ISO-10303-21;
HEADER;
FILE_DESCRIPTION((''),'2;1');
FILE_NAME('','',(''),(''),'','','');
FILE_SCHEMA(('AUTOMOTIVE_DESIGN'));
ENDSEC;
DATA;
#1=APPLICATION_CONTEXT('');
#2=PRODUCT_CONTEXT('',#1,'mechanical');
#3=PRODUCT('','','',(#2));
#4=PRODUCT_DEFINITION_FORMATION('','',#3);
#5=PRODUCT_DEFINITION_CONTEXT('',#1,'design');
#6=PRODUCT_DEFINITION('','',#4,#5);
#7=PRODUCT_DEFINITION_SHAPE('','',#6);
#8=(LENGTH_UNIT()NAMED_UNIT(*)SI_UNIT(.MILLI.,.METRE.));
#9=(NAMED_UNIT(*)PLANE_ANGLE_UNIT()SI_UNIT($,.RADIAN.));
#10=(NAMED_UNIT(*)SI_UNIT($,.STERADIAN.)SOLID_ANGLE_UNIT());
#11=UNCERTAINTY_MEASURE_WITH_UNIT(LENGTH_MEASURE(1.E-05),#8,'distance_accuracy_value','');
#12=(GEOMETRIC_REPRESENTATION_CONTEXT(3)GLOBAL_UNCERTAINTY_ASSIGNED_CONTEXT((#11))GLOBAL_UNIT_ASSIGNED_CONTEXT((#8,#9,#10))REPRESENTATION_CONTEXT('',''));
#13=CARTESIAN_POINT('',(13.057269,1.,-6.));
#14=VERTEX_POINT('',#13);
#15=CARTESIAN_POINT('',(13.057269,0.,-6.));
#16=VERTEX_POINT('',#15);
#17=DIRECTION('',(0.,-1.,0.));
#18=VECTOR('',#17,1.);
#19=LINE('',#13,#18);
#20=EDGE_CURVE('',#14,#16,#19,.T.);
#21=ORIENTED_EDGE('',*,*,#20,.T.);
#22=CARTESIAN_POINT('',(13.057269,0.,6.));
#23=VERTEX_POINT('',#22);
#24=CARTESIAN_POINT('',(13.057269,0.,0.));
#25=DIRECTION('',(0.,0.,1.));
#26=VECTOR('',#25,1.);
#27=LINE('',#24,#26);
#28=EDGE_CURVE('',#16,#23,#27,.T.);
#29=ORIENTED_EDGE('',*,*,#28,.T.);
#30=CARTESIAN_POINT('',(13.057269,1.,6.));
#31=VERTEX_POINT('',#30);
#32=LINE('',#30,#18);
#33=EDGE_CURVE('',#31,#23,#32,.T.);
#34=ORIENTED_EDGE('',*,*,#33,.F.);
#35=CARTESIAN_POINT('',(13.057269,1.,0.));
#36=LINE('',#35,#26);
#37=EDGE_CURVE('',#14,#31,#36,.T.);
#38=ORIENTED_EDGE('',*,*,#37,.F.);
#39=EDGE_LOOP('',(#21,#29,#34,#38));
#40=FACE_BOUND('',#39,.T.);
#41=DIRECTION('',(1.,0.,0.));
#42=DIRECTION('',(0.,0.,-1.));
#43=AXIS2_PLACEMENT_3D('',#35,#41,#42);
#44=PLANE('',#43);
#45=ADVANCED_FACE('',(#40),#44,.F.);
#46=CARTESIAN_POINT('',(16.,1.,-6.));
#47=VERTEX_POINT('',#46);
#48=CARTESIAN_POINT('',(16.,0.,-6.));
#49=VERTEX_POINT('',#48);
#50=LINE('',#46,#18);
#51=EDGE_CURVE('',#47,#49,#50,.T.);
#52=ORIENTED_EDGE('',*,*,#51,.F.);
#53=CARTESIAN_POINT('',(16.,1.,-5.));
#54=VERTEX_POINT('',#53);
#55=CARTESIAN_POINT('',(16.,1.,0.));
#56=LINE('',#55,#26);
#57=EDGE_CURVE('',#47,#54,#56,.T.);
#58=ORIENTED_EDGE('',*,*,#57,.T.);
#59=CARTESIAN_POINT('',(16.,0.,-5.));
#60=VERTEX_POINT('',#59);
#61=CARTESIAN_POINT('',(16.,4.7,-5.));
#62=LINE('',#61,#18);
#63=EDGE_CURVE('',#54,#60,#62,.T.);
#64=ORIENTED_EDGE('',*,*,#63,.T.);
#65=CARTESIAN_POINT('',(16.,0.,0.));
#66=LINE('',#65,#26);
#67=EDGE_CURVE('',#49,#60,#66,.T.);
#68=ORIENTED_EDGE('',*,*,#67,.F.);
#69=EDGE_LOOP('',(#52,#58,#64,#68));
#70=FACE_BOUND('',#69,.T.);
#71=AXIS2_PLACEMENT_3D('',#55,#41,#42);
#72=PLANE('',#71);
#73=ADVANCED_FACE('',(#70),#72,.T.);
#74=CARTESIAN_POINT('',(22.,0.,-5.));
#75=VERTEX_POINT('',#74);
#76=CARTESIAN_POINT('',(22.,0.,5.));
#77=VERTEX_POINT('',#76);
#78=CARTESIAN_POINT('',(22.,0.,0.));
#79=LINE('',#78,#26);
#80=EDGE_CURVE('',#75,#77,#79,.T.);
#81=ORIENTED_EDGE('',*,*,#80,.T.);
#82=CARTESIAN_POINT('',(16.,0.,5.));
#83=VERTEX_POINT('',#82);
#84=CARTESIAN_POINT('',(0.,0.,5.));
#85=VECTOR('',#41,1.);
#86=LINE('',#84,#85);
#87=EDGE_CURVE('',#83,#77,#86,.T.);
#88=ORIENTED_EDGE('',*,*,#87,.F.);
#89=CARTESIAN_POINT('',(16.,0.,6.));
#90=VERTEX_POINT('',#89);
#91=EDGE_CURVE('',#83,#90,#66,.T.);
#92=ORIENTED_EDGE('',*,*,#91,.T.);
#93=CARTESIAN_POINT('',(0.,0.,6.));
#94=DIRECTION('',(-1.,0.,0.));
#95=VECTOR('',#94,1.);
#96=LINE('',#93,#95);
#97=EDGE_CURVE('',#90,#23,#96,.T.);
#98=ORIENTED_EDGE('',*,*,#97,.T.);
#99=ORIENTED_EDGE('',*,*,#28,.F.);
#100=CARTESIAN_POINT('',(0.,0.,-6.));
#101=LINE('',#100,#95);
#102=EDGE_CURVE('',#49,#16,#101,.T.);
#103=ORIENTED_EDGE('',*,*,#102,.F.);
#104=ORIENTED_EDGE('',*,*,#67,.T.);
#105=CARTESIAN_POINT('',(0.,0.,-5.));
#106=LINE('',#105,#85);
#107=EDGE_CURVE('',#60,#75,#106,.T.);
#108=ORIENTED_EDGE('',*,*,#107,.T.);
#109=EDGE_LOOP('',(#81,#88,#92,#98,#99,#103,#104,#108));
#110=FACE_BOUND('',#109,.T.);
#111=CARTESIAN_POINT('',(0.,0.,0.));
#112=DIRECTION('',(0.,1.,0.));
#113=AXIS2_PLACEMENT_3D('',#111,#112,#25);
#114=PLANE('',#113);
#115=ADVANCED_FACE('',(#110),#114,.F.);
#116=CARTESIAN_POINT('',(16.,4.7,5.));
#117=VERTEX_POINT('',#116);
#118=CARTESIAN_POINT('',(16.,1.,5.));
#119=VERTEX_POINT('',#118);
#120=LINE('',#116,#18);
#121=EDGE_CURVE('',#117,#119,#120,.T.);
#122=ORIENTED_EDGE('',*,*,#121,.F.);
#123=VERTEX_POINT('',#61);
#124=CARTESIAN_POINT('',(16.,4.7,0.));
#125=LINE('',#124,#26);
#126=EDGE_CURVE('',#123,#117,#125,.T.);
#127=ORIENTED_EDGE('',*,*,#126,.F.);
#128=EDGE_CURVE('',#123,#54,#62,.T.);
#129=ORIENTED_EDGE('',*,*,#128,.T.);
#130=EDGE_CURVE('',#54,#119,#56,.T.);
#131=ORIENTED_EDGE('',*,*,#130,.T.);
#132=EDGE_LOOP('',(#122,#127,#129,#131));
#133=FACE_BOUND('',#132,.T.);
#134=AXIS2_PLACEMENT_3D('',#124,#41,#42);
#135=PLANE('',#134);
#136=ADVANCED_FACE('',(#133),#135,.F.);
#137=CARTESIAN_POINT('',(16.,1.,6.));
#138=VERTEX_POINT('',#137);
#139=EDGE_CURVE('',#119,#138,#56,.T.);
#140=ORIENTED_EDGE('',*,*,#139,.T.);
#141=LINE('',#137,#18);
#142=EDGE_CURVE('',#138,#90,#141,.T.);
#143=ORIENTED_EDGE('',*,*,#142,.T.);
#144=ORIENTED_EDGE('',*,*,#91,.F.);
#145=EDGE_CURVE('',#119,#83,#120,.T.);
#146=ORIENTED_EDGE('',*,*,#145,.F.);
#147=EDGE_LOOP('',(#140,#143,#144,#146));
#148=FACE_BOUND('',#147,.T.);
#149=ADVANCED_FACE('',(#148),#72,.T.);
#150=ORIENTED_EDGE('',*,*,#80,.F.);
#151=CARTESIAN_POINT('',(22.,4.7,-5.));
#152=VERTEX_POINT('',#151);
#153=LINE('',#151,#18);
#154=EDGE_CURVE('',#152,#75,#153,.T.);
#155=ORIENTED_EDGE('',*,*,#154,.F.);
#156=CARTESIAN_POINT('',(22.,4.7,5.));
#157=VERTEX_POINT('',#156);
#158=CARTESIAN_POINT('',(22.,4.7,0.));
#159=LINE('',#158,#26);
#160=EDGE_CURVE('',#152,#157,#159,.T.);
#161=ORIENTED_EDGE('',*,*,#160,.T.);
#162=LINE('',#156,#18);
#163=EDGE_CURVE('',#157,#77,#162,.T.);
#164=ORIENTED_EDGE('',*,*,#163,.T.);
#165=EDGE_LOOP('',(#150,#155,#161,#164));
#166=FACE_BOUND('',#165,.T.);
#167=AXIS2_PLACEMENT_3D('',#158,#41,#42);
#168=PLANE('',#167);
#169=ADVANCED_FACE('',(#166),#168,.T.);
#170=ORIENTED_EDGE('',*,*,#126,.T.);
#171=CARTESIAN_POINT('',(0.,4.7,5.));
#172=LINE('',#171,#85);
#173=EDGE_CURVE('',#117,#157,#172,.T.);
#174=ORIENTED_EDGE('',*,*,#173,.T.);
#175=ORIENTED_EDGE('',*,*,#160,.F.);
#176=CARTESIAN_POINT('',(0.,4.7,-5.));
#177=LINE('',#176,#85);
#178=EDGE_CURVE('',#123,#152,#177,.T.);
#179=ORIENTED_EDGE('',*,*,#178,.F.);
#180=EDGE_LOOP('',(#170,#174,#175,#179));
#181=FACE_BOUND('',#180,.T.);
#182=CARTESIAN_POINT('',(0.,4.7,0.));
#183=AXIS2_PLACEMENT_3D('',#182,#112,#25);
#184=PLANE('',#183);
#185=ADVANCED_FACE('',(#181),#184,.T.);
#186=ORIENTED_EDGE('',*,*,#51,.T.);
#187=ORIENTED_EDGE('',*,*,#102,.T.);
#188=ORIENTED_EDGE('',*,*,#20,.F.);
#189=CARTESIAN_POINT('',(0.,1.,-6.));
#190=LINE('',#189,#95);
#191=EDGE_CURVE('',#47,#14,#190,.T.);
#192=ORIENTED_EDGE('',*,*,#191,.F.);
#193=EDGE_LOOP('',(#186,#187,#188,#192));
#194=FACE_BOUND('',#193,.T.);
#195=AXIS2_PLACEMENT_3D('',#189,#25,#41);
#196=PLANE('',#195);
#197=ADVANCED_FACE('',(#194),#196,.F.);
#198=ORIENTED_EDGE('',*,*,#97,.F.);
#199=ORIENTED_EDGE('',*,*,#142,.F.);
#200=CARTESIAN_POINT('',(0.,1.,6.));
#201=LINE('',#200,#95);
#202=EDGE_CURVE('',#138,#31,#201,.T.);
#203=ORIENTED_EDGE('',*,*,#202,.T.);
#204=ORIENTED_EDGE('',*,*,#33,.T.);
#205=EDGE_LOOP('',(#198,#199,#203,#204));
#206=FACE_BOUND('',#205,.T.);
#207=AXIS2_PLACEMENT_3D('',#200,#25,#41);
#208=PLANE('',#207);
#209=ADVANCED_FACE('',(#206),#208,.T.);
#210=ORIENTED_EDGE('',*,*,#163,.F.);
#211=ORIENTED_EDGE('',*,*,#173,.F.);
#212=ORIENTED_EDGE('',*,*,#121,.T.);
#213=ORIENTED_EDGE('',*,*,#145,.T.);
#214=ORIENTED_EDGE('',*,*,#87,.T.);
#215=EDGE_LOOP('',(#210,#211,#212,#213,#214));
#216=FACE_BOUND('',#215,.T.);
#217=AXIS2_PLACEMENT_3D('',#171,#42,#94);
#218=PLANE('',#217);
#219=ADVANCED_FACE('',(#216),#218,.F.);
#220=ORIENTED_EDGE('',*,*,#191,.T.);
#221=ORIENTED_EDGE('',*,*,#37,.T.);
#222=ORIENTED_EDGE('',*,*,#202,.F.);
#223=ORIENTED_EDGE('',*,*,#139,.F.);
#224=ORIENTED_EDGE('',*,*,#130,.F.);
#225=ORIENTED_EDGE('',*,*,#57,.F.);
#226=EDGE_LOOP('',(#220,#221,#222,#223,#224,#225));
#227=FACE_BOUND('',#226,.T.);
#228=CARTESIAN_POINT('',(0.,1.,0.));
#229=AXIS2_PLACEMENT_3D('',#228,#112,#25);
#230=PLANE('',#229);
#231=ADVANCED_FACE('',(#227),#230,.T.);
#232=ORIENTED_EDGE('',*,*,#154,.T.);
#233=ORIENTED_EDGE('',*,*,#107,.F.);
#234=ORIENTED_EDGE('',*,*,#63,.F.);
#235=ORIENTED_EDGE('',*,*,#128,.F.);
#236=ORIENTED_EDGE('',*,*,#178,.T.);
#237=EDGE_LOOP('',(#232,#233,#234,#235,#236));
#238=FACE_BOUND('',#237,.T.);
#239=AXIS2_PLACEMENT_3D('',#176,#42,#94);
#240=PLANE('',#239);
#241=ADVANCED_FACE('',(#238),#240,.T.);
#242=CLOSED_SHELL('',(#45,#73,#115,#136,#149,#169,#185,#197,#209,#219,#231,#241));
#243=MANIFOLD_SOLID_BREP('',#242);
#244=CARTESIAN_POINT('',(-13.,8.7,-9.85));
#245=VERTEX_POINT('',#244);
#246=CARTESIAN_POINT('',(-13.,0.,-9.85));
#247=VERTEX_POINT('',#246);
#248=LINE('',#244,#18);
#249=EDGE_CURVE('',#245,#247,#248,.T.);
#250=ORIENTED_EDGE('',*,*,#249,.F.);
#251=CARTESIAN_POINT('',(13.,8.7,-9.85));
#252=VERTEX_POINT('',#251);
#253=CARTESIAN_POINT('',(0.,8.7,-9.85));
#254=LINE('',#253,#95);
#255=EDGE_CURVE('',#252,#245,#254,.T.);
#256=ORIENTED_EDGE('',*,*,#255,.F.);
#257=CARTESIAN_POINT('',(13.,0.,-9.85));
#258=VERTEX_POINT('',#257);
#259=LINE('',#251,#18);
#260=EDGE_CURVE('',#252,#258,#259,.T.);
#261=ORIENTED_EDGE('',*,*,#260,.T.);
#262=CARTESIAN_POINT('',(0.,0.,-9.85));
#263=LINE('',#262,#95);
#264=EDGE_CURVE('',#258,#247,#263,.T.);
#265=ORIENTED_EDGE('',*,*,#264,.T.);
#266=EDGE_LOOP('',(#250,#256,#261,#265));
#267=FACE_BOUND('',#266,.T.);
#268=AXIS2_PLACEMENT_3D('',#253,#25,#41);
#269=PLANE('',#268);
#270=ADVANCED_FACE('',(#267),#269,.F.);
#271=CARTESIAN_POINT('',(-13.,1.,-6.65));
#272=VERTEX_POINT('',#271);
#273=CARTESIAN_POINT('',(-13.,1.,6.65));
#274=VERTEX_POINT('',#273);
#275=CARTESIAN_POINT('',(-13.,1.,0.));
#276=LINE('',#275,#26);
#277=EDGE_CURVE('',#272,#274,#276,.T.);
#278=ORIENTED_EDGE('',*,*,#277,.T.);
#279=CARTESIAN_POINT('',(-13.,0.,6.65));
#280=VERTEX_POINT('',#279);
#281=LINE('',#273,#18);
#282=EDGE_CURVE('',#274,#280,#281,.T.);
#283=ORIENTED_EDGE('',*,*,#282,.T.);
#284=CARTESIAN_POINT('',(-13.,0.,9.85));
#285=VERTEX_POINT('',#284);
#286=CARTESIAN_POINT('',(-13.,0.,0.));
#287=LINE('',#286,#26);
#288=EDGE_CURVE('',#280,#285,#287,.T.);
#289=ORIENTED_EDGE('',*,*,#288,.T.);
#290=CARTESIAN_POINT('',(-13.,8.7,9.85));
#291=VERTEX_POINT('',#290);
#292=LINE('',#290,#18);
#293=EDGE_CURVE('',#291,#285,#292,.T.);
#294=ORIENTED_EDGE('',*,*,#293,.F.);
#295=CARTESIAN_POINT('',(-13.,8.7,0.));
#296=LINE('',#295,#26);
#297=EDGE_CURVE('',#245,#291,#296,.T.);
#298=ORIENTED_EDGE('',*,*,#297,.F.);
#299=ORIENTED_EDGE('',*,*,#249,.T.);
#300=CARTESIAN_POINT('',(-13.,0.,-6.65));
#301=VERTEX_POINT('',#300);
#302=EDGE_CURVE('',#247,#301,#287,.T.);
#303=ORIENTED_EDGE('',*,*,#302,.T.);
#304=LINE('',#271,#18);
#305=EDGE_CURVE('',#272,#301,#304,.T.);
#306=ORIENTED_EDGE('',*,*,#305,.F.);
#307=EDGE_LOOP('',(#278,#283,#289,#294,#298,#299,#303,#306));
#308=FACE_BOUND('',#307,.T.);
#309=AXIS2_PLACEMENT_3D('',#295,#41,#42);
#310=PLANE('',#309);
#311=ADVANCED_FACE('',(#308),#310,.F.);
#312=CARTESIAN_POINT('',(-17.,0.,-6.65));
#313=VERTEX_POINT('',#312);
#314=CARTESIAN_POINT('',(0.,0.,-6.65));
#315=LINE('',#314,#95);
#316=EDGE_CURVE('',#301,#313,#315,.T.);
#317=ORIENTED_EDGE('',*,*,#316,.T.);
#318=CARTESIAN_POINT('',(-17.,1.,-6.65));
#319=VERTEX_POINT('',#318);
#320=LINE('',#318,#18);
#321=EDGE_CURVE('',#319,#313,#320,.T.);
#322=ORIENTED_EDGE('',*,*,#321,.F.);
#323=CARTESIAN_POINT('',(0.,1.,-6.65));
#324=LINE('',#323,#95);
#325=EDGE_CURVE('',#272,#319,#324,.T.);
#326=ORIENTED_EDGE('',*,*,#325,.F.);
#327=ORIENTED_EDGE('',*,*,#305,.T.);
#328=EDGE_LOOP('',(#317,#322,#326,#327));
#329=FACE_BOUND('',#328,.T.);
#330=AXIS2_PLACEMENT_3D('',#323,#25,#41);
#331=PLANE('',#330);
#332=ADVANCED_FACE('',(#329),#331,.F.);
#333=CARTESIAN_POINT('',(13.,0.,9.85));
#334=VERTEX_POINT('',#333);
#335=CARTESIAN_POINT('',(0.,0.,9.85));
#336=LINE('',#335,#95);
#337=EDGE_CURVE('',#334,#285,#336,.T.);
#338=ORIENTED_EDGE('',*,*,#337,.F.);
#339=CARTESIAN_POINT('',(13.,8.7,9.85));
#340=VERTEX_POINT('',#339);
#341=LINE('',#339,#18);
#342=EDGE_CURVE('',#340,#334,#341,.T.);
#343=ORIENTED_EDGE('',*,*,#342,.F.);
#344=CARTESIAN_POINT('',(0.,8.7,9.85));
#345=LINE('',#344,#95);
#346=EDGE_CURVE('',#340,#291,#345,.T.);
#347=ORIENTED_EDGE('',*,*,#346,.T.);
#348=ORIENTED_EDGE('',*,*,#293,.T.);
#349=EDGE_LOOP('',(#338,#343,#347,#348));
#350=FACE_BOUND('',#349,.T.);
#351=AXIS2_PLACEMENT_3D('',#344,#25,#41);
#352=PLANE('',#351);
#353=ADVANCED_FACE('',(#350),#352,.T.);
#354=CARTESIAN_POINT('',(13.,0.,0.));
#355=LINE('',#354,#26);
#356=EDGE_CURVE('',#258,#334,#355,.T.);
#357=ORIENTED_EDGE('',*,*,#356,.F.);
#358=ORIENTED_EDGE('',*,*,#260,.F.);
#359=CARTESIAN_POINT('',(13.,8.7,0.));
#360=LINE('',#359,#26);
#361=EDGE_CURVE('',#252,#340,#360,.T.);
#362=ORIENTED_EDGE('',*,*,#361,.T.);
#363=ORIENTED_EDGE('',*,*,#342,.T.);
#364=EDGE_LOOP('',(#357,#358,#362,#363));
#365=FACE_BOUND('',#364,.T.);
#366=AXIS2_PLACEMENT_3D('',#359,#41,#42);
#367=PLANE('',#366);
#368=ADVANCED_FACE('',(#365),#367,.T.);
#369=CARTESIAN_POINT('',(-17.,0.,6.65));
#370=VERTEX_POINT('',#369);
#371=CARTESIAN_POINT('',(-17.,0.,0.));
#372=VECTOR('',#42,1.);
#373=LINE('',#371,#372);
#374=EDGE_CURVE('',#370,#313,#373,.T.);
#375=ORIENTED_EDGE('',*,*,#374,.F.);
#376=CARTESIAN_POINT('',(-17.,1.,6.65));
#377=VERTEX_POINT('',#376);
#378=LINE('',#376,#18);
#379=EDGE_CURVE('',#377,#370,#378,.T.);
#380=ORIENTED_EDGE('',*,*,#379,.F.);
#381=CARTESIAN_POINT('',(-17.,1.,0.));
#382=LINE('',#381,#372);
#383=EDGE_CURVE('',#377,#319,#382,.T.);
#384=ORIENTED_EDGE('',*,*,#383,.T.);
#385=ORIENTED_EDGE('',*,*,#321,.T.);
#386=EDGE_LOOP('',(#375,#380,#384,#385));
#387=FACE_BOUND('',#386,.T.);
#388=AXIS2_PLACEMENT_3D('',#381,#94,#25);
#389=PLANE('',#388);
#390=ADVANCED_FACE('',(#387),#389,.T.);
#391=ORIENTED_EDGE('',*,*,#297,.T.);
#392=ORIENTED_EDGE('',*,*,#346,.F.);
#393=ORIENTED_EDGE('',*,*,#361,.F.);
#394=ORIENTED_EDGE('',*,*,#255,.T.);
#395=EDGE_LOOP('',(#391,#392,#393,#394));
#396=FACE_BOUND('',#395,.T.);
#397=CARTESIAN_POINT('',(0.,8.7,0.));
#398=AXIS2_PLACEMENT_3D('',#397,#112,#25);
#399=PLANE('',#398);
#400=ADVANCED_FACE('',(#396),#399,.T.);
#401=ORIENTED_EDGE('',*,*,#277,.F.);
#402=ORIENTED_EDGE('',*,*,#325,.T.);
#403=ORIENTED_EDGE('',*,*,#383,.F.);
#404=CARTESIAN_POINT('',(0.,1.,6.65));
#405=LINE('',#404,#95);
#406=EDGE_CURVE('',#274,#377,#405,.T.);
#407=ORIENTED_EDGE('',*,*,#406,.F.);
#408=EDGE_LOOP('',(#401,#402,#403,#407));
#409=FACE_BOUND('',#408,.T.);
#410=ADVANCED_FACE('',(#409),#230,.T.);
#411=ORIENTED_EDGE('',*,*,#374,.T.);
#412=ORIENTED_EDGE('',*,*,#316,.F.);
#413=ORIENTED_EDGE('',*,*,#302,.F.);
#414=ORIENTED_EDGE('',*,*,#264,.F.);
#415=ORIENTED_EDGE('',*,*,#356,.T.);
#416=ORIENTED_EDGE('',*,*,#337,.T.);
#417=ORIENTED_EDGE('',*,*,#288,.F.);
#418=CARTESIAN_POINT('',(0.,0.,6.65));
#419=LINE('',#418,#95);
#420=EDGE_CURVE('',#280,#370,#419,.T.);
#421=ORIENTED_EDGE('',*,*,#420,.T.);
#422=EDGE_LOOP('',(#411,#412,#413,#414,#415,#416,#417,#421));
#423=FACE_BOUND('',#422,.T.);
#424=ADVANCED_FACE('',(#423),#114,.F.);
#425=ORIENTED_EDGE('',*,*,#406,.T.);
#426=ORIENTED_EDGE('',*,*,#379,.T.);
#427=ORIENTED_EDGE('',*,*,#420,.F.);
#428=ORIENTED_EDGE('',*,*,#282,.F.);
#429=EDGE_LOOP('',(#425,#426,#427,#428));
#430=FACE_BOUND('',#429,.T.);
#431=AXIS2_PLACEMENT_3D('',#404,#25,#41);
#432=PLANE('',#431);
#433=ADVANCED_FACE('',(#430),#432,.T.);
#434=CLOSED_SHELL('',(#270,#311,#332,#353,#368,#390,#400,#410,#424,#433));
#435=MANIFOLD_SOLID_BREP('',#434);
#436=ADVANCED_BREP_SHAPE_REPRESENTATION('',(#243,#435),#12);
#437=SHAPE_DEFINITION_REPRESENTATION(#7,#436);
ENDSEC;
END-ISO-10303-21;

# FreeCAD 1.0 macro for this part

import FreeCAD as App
import Part
import Sketcher
Q = App.Units.Quantity


def add_polygon(sketch, points):
    """Adds a closed chain of lines whose ends are joined by coincident constraints."""
    first, n = sketch.GeometryCount, len(points)
    for a, b in zip(points, points[1:] + points[:1]):
        sketch.addGeometry(Part.LineSegment(App.Vector(*a, 0), App.Vector(*b, 0)), False)
    for i in range(n):
        sketch.addConstraint(Sketcher.Constraint("Coincident", first + i, 2, first + (i + 1) % n, 1))

doc = App.newDocument("Part")
body = doc.addObject("PartDesign::Body", "Body")
body.AllowCompound = True

# Sketch on XZ plane
sketch1 = body.newObject("Sketcher::SketchObject", "Sketch")
sketch1.AttachmentSupport = (doc.getObject("XZ_Plane"), [""])
sketch1.MapMode = "FlatFace"
add_polygon(sketch1, [(-17, -6.65), (-17, 6.65), (-13, 6.65), (-13, -6.65)])  # lines 0-3
add_polygon(sketch1, [(13.057269, -6), (13.057269, 6), (16, 6), (16, -6)])  # lines 4-7
sketch1.addConstraint([
    Sketcher.Constraint("Vertical", 0),
    Sketcher.Constraint("Horizontal", 1),
    Sketcher.Constraint("Vertical", 2),
    Sketcher.Constraint("Horizontal", 3),
    Sketcher.Constraint("Vertical", 4),
    Sketcher.Constraint("Horizontal", 5),
    Sketcher.Constraint("Vertical", 6),
    Sketcher.Constraint("Horizontal", 7),
    Sketcher.Constraint("DistanceX", 1, 1, 1, 2, Q("4 mm")),
    Sketcher.Constraint("DistanceY", 4, 1, 4, 2, Q("12 mm")),
    Sketcher.Constraint("DistanceY", 0, 1, 0, 2, Q("13.3 mm")),
    Sketcher.Constraint("DistanceX", 0, 2, -1, 1, Q("17 mm")),
    Sketcher.Constraint("DistanceY", -1, 1, 4, 2, Q("6 mm")),
    Sketcher.Constraint("DistanceX", -1, 1, 5, 2, Q("16 mm")),
    Sketcher.Constraint("DistanceY", -1, 1, 0, 2, Q("6.65 mm")),
    Sketcher.Constraint("DistanceX", 5, 1, 5, 2, Q("2.942731 mm")),
])
pad1 = body.newObject("PartDesign::Pad", "Pad")
pad1.Profile = sketch1
pad1.Length = 1
pad1.Reversed = True

# Sketch on XZ plane
sketch2 = body.newObject("Sketcher::SketchObject", "Sketch001")
sketch2.AttachmentSupport = (doc.getObject("XZ_Plane"), [""])
sketch2.MapMode = "FlatFace"
add_polygon(sketch2, [(-13, -9.85), (-13, 9.85), (13, 9.85), (13, -9.85)])  # lines 0-3
sketch2.addConstraint([
    Sketcher.Constraint("Vertical", 0),
    Sketcher.Constraint("Horizontal", 1),
    Sketcher.Constraint("Vertical", 2),
    Sketcher.Constraint("Horizontal", 3),
    Sketcher.Constraint("Symmetric", 0, 2, 2, 2, -1, 1),
    Sketcher.Constraint("DistanceX", 1, 1, 1, 2, Q("26 mm")),
    Sketcher.Constraint("DistanceY", 0, 1, 0, 2, Q("19.7 mm")),
])
pad2 = body.newObject("PartDesign::Pad", "Pad001")
pad2.Profile = sketch2
pad2.Length = 8.7
pad2.Reversed = True

# Sketch on XZ plane
sketch3 = body.newObject("Sketcher::SketchObject", "Sketch002")
sketch3.AttachmentSupport = (doc.getObject("XZ_Plane"), [""])
sketch3.MapMode = "FlatFace"
add_polygon(sketch3, [(16, -5), (16, 5), (22, 5), (22, -5)])  # lines 0-3
sketch3.addConstraint([
    Sketcher.Constraint("Vertical", 0),
    Sketcher.Constraint("Horizontal", 1),
    Sketcher.Constraint("Vertical", 2),
    Sketcher.Constraint("Horizontal", 3),
    Sketcher.Constraint("DistanceX", 1, 1, 1, 2, Q("6 mm")),
    Sketcher.Constraint("DistanceY", 0, 1, 0, 2, Q("10 mm")),
    Sketcher.Constraint("DistanceX", -1, 1, 0, 2, Q("16 mm")),
    Sketcher.Constraint("DistanceY", -1, 1, 0, 2, Q("5 mm")),
])
pad3 = body.newObject("PartDesign::Pad", "Pad002")
pad3.Profile = sketch3
pad3.Length = 4.7
pad3.Reversed = True

doc.recompute()
